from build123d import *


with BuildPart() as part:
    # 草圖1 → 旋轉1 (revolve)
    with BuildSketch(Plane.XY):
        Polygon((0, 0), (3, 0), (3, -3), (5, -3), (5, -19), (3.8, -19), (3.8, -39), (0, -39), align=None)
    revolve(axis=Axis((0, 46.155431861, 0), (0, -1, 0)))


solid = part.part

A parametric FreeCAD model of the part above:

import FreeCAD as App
import Part
import Sketcher

V = App.Vector


def add_polygon(sketch, points):
    """Adds a closed chain of lines whose ends are joined by coincident constraints."""
    first, n = sketch.GeometryCount, len(points)
    for a, b in zip(points, points[1:] + points[:1]):
        sketch.addGeometry(Part.LineSegment(App.Vector(*a, 0), App.Vector(*b, 0)), False)
    for i in range(n):
        sketch.addConstraint(Sketcher.Constraint("Coincident", first + i, 2, first + (i + 1) % n, 1))

doc = App.newDocument("Part")
params = doc.addObject("Spreadsheet::Sheet", "Params")
for row, (alias, value) in enumerate([
    ("sketch1_width", "3 mm"),
    ("sketch1_width2", "2 mm"),
    ("sketch1_height", "39 mm"),
    ("sketch1_height2", "20 mm"),
    ("sketch1_width3", "3.8 mm"),
    ("revolution_angle", "360 deg"),
], start=1):
    params.set(f"A{row}", alias)
    params.set(f"B{row}", "=" + value)
    params.setAlias(f"B{row}", alias)

body = doc.addObject("PartDesign::Body", "Body")

# Sketch on XY plane
sketch1 = body.newObject("Sketcher::SketchObject", "Sketch")
sketch1.AttachmentSupport = (doc.getObject("XY_Plane"), [""])
sketch1.MapMode = "FlatFace"
add_polygon(sketch1, [(3, 0), (0, 0), (0, -39), (3.8, -39), (3.8, -19), (5, -19), (5, -3), (3, -3)])  # lines 0-7
sketch1.addConstraint([
    Sketcher.Constraint("Horizontal", 0),
    Sketcher.Constraint("Vertical", 1),
    Sketcher.Constraint("Horizontal", 2),
    Sketcher.Constraint("Vertical", 3),
    Sketcher.Constraint("Horizontal", 4),
    Sketcher.Constraint("Vertical", 5),
    Sketcher.Constraint("Horizontal", 6),
    Sketcher.Constraint("Vertical", 7),
    Sketcher.Constraint("Coincident", 0, 2, -1, 1),
    Sketcher.Constraint("Equal", 0, 7),
    Sketcher.Constraint("DistanceX", 0, 2, 0, 1, 3.0),
    Sketcher.Constraint("DistanceX", 6, 2, 6, 1, 2.0),
    Sketcher.Constraint("DistanceY", 1, 2, 1, 1, 39.0),
    Sketcher.Constraint("DistanceY", 3, 1, 3, 2, 20.0),
    Sketcher.Constraint("DistanceX", 2, 1, 2, 2, 3.8),
])
sketch1.setExpression("Constraints[18]", "Params.sketch1_width")
sketch1.setExpression("Constraints[19]", "Params.sketch1_width2")
sketch1.setExpression("Constraints[20]", "Params.sketch1_height")
sketch1.setExpression("Constraints[21]", "Params.sketch1_height2")
sketch1.setExpression("Constraints[22]", "Params.sketch1_width3")
revolution = body.newObject("PartDesign::Revolution", "Revolution")
revolution.Profile = sketch1
revolution.ReferenceAxis = (sketch1, ["V_Axis"])
revolution.setExpression("Angle", "Params.revolution_angle")

doc.recompute()
